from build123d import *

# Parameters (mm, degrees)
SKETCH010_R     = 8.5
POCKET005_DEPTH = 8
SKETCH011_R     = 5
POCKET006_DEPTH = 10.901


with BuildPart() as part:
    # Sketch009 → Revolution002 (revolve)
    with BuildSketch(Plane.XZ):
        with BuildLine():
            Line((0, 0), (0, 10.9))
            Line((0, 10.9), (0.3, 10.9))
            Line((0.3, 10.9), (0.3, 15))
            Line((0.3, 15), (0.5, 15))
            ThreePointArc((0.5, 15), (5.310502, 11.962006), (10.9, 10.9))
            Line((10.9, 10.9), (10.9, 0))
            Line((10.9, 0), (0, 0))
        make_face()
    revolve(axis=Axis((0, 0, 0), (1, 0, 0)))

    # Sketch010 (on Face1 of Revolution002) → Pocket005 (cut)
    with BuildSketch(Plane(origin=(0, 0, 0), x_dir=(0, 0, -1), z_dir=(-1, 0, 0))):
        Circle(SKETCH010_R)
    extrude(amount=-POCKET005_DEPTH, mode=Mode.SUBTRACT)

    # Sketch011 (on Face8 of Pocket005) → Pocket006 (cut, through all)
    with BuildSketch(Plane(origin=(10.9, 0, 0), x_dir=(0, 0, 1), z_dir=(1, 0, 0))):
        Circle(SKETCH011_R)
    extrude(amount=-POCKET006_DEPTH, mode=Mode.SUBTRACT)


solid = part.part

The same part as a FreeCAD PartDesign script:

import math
import FreeCAD as App
import Part
import Sketcher

doc = App.newDocument("Part")
body = doc.addObject("PartDesign::Body", "Body")

# Sketch on XZ plane
sketch1 = body.newObject("Sketcher::SketchObject", "Sketch")
sketch1.AttachmentSupport = (doc.getObject("XZ_Plane"), [""])
sketch1.MapMode = "FlatFace"
sketch1.addGeometry([
    Part.LineSegment(App.Vector(0, 10.9, 0), App.Vector(0, 0, 0)),  # 0
    Part.LineSegment(App.Vector(0, 0, 0), App.Vector(10.9, 0, 0)),  # 1
    Part.LineSegment(App.Vector(10.9, 0, 0), App.Vector(10.9, 10.9, 0)),  # 2
    Part.ArcOfCircle(Part.Circle(App.Vector(10.9, 26.14, 0), App.Vector(0, 0, 1), 15.24), math.radians(-133), math.radians(-90)),  # 3
    Part.LineSegment(App.Vector(0.5, 15, 0), App.Vector(0.3, 15, 0)),  # 4
    Part.LineSegment(App.Vector(0.3, 15, 0), App.Vector(0.3, 10.9, 0)),  # 5
    Part.LineSegment(App.Vector(0.3, 10.9, 0), App.Vector(0, 10.9, 0)),  # 6
], False)
sketch1.addConstraint([
    Sketcher.Constraint("Coincident", 0, 2, 1, 1),
    Sketcher.Constraint("Coincident", 1, 2, 2, 1),
    Sketcher.Constraint("Coincident", 2, 2, 3, 2),
    Sketcher.Constraint("Coincident", 3, 1, 4, 1),
    Sketcher.Constraint("Coincident", 4, 2, 5, 1),
    Sketcher.Constraint("Coincident", 5, 2, 6, 1),
    Sketcher.Constraint("Coincident", 6, 2, 0, 1),
    Sketcher.Constraint("Vertical", 0),
    Sketcher.Constraint("Horizontal", 1),
    Sketcher.Constraint("Vertical", 2),
    Sketcher.Constraint("Horizontal", 4),
    Sketcher.Constraint("Vertical", 5),
    Sketcher.Constraint("Horizontal", 6),
    Sketcher.Constraint("Coincident", 0, 2, -1, 1),
    Sketcher.Constraint("Horizontal", 2, 2, 5, 2),
    Sketcher.Constraint("Equal", 1, 0),
    Sketcher.Constraint("DistanceX", 1, 1, 1, 2, 10.9),
    Sketcher.Constraint("DistanceX", 4, 2, 4, 1, 0.2),
    Sketcher.Constraint("DistanceX", 6, 2, 6, 1, 0.3),
    Sketcher.Constraint("DistanceY", 5, 2, 5, 1, 4.1),
    Sketcher.Constraint("Radius", 3, 15.240295),
])
revolution = body.newObject("PartDesign::Revolution", "Revolution")
revolution.Profile = sketch1
revolution.ReferenceAxis = (sketch1, ["H_Axis"])
revolution.Angle = 360

# Sketch on YZ plane
sketch2 = body.newObject("Sketcher::SketchObject", "Sketch001")
sketch2.AttachmentSupport = (doc.getObject("YZ_Plane"), [""])
sketch2.MapMode = "FlatFace"
sketch2.addGeometry(Part.Circle(App.Vector(0, 0, 0), App.Vector(0, 0, 1), 8), False)
sketch2.addConstraint([
    Sketcher.Constraint("Coincident", 0, 3, -1, 1),
    Sketcher.Constraint("Diameter", 0, 17.0),
])
pocket1 = body.newObject("PartDesign::Pocket", "Pocket")
pocket1.Profile = sketch2
pocket1.Length = 8
pocket1.Reversed = True

# Sketch on YZ plane
sketch3 = body.newObject("Sketcher::SketchObject", "Sketch002")
sketch3.AttachmentSupport = (doc.getObject("YZ_Plane"), [""])
sketch3.MapMode = "FlatFace"
sketch3.AttachmentOffset = App.Placement(App.Vector(0, 0, 10.9), App.Rotation())
sketch3.addGeometry(Part.Circle(App.Vector(0, 0, 0), App.Vector(0, 0, 1), 5), False)
sketch3.addConstraint([
    Sketcher.Constraint("Coincident", 0, 3, -1, 1),
    Sketcher.Constraint("Diameter", 0, 10.0),
])
pocket2 = body.newObject("PartDesign::Pocket", "Pocket001")
pocket2.Profile = sketch3
pocket2.Type = "ThroughAll"

doc.recompute()
